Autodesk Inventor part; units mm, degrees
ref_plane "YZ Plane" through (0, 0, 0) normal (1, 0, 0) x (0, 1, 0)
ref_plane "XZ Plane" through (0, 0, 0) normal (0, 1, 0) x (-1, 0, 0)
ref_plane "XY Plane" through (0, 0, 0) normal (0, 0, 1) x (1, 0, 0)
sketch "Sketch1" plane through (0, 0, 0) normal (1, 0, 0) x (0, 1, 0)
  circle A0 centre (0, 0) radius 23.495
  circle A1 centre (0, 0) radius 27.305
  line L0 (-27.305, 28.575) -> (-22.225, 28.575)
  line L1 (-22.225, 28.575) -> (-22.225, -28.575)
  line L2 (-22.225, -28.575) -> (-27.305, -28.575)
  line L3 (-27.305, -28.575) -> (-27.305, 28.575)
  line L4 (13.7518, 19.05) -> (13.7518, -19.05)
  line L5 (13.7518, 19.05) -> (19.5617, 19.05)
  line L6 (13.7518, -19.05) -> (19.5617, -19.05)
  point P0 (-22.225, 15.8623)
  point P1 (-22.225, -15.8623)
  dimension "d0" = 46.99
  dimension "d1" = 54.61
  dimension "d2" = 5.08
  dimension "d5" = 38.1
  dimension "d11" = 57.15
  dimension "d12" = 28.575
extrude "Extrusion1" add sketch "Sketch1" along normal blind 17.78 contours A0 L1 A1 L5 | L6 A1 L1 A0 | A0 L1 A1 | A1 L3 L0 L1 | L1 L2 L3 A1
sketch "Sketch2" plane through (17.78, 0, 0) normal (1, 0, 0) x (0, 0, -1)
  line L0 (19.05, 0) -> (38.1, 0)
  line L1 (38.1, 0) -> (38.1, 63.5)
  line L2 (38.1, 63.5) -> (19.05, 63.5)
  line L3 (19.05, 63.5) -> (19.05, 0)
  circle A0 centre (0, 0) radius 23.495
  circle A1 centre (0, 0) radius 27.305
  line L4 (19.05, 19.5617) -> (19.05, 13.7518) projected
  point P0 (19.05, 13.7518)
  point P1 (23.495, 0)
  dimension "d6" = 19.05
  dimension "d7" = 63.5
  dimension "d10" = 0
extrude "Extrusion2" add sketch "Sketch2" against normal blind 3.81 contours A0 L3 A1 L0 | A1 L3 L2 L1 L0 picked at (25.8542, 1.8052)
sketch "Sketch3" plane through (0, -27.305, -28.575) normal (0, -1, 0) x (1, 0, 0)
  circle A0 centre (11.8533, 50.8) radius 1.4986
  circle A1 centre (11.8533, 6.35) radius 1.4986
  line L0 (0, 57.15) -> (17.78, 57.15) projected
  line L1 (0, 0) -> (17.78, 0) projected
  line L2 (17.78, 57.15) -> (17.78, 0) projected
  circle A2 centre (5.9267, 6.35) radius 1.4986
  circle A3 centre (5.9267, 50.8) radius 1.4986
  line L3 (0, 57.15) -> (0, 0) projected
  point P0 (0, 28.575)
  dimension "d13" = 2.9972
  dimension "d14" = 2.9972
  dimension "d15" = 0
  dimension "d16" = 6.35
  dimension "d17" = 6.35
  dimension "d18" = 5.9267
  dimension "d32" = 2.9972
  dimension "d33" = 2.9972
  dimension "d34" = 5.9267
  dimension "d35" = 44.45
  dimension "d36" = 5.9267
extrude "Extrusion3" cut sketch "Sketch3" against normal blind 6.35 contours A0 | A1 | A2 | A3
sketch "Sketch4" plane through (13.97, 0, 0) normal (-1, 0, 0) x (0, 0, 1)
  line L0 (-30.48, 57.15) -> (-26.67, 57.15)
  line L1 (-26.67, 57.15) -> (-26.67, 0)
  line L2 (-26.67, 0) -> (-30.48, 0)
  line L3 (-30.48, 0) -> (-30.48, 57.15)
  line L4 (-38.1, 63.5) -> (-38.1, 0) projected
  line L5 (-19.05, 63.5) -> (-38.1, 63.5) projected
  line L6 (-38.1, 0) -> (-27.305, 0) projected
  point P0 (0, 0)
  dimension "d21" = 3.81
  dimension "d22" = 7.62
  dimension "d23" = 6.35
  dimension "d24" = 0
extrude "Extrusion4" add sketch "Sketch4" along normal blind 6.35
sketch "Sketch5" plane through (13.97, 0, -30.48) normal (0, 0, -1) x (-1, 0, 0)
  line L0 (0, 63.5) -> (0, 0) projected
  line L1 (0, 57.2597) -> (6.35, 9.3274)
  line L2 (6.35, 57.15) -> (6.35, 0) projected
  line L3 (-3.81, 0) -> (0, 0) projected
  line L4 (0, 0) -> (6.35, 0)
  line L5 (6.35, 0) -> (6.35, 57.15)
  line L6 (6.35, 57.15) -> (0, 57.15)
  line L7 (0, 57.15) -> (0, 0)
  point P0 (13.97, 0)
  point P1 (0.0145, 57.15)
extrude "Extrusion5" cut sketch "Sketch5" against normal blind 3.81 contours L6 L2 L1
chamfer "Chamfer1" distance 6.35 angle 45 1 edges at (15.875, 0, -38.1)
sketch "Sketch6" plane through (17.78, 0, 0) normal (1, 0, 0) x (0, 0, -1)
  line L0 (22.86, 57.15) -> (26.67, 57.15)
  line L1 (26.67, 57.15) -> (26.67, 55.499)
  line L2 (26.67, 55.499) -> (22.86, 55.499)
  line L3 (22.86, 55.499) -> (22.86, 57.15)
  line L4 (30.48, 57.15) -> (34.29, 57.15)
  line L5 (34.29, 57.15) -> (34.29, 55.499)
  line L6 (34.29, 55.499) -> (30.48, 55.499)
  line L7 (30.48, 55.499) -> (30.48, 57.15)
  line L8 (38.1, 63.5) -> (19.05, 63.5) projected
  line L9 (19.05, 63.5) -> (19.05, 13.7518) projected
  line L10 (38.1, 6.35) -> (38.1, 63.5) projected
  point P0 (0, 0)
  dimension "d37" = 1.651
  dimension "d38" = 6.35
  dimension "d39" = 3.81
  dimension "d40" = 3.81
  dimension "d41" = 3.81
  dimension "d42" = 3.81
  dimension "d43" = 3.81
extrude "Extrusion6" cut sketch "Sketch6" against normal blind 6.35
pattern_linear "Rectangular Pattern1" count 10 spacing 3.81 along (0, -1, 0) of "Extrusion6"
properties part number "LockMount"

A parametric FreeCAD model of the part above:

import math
import FreeCAD as App
import Part
import Sketcher

V = App.Vector
Q = App.Units.Quantity


def edges_at(feature, points):
    """Names of the edges that pass closest to the given points."""
    edges = feature.Shape.Edges
    near = lambda p: min(range(len(edges)), key=lambda i: edges[i].distToShape(Part.Vertex(*p))[0])
    return sorted({f"Edge{near(p) + 1}" for p in points})


def add_polygon(sketch, points):
    """Adds a closed chain of lines whose ends are joined by coincident constraints."""
    first, n = sketch.GeometryCount, len(points)
    for a, b in zip(points, points[1:] + points[:1]):
        sketch.addGeometry(Part.LineSegment(App.Vector(*a, 0), App.Vector(*b, 0)), False)
    for i in range(n):
        sketch.addConstraint(Sketcher.Constraint("Coincident", first + i, 2, first + (i + 1) % n, 1))

doc = App.newDocument("Part")
params = doc.addObject("Spreadsheet::Sheet", "Params")
for row, (alias, value) in enumerate([
    ("sketch1_width", "0.2 in"),
    ("sketch1_radius", "1.075 in"),
    ("sketch1_radius2", "0.925 in"),
    ("sketch1_height", "2.25 in"),
    ("pad1_length", "0.7 in"),
    ("sketch2_width", "2.5 in"),
    ("sketch2_height", "0.75 in"),
    ("sketch2_radius", "0.925 in"),
    ("pad2_length", "0.15 in"),
    ("sketch3_diameter", "0.118 in"),
    ("pocket1_length", "0.25 in"),
    ("sketch4_height", "0.15 in"),
    ("sketch4_width", "2.25 in"),
    ("pad3_length", "0.25 in"),
    ("pocket2_length", "0.15 in"),
    ("chamfer_size", "0.25 in"),
    ("sketch6_height", "0.15 in"),
    ("sketch6_width", "0.065 in"),
    ("pocket3_length", "0.25 in"),
    ("linearpattern_pitch", "0.15 in"),
], start=1):
    params.set(f"A{row}", alias)
    params.set(f"B{row}", "=" + value)
    params.setAlias(f"B{row}", alias)

body = doc.addObject("PartDesign::Body", "Body")

sketch1 = body.newObject("Sketcher::SketchObject", "Sketch")
sketch1.AttachmentSupport = (doc.getObject("YZ_Plane"), [""])
sketch1.MapMode = "FlatFace"
sketch1.addGeometry([
    Part.LineSegment(V(14, 19, 0), V(20, 19, 0)),
    Part.ArcOfCircle(Part.Circle(V(0, 0, 0), V(0, 0, 1), 27), math.radians(44), math.radians(144)),
    Part.LineSegment(V(-22, 16, 0), V(-22, 29, 0)),
    Part.LineSegment(V(-22, 29, 0), V(-27, 29, 0)),
    Part.LineSegment(V(-27, 29, 0), V(-27, -29, 0)),
    Part.LineSegment(V(-27, -29, 0), V(-22, -29, 0)),
    Part.LineSegment(V(-22, -29, 0), V(-22, -16, 0)),
    Part.ArcOfCircle(Part.Circle(V(0, 0, 0), V(0, 0, 1), 27), math.radians(-144), math.radians(-44)),
    Part.LineSegment(V(20, -19, 0), V(14, -19, 0)),
    Part.ArcOfCircle(Part.Circle(V(0, 0, 0), V(0, 0, 1), 23), math.radians(54), math.radians(306)),
], False)
sketch1.addConstraint([
    Sketcher.Constraint("Coincident", 0, 2, 1, 1),
    Sketcher.Constraint("Coincident", 1, 2, 2, 1),
    Sketcher.Constraint("Coincident", 2, 2, 3, 1),
    Sketcher.Constraint("Coincident", 3, 2, 4, 1),
    Sketcher.Constraint("Coincident", 4, 2, 5, 1),
    Sketcher.Constraint("Coincident", 5, 2, 6, 1),
    Sketcher.Constraint("Coincident", 6, 2, 7, 1),
    Sketcher.Constraint("Coincident", 7, 2, 8, 1),
    Sketcher.Constraint("Coincident", 8, 2, 9, 2),
    Sketcher.Constraint("Coincident", 9, 1, 0, 1),
    Sketcher.Constraint("Horizontal", 0),
    Sketcher.Constraint("Vertical", 2),
    Sketcher.Constraint("Horizontal", 3),
    Sketcher.Constraint("Vertical", 4),
    Sketcher.Constraint("Horizontal", 5),
    Sketcher.Constraint("Vertical", 6),
    Sketcher.Constraint("Horizontal", 8),
    Sketcher.Constraint("Coincident", 1, 3, -1, 1),
    Sketcher.Constraint("Coincident", 7, 3, -1, 1),
    Sketcher.Constraint("Coincident", 9, 3, -1, 1),
    Sketcher.Constraint("Equal", 1, 7),
    Sketcher.Constraint("Symmetric", 2, 2, 5, 2, -1),
    Sketcher.Constraint("Vertical", 0, 2, 7, 2),
    Sketcher.Constraint("DistanceX", 3, 2, 3, 1, Q("0.2 in")),
    Sketcher.Constraint("Radius", 1, Q("1.075 in")),
    Sketcher.Constraint("Radius", 9, Q("0.925 in")),
    Sketcher.Constraint("DistanceY", 4, 2, 4, 1, Q("2.25 in")),
    Sketcher.Constraint("DistanceY", 7, 2, 0, 2, Q("1.5 in")),
    Sketcher.Constraint("DistanceY", 2, 1, 2, 2, Q("0.5005 in")),
])
sketch1.setExpression("Constraints[23]", "Params.sketch1_width")
sketch1.setExpression("Constraints[24]", "Params.sketch1_radius")
sketch1.setExpression("Constraints[25]", "Params.sketch1_radius2")
sketch1.setExpression("Constraints[26]", "Params.sketch1_height")
pad1 = body.newObject("PartDesign::Pad", "Pad")
pad1.Profile = sketch1
pad1.setExpression("Length", "Params.pad1_length")

sketch2 = body.newObject("Sketcher::SketchObject", "Sketch001")
sketch2.AttachmentSupport = (doc.getObject("YZ_Plane"), [""])
sketch2.MapMode = "FlatFace"
sketch2.AttachmentOffset = App.Placement(V(0, 0, 0.7 * 25.4), App.Rotation())
sketch2.addGeometry([
    Part.ArcOfCircle(Part.Circle(V(0, 0, 0), V(0, 0, 1), 23), math.radians(-90), math.radians(-54)),
    Part.LineSegment(V(0, -23, 0), V(0, -38, 0)),
    Part.LineSegment(V(0, -38, 0), V(64, -38, 0)),
    Part.LineSegment(V(64, -38, 0), V(64, -19, 0)),
    Part.LineSegment(V(64, -19, 0), V(14, -19, 0)),
], False)
sketch2.addConstraint([
    Sketcher.Constraint("Coincident", 0, 1, 1, 1),
    Sketcher.Constraint("Coincident", 1, 2, 2, 1),
    Sketcher.Constraint("Coincident", 2, 2, 3, 1),
    Sketcher.Constraint("Coincident", 3, 2, 4, 1),
    Sketcher.Constraint("Coincident", 4, 2, 0, 2),
    Sketcher.Constraint("Vertical", 1),
    Sketcher.Constraint("Horizontal", 2),
    Sketcher.Constraint("Vertical", 3),
    Sketcher.Constraint("Horizontal", 4),
    Sketcher.Constraint("Coincident", 0, 3, -1, 1),
    Sketcher.Constraint("PointOnObject", 0, 1, -2),
    Sketcher.Constraint("DistanceX", 2, 1, 2, 2, Q("2.5 in")),
    Sketcher.Constraint("DistanceY", 3, 1, 3, 2, Q("0.75 in")),
    Sketcher.Constraint("DistanceY", 3, 2, -1, 1, Q("0.75 in")),
    Sketcher.Constraint("Radius", 0, Q("0.925 in")),
])
sketch2.setExpression("Constraints[11]", "Params.sketch2_width")
sketch2.setExpression("Constraints[12]", "Params.sketch2_height")
sketch2.setExpression("Constraints[14]", "Params.sketch2_radius")
pad2 = body.newObject("PartDesign::Pad", "Pad001")
pad2.Profile = sketch2
pad2.setExpression("Length", "Params.pad2_length")
pad2.Reversed = True

sketch3 = body.newObject("Sketcher::SketchObject", "Sketch002")
sketch3.AttachmentSupport = (doc.getObject("XZ_Plane"), [""])
sketch3.MapMode = "FlatFace"
sketch3.AttachmentOffset = App.Placement(V(0, 0, 1.075 * 25.4), App.Rotation())
sketch3.addGeometry([
    Part.Circle(V(11.9, 22.2, 0), V(0, 0, 1), 1.5),
    Part.Circle(V(11.9, -22.2, 0), V(0, 0, 1), 1.5),
    Part.Circle(V(5.9, -22.2, 0), V(0, 0, 1), 1.5),
    Part.Circle(V(5.9, 22.2, 0), V(0, 0, 1), 1.5),
], False)
sketch3.addConstraint([
    Sketcher.Constraint("Equal", 0, 1),
    Sketcher.Constraint("Equal", 1, 2),
    Sketcher.Constraint("Equal", 2, 3),
    Sketcher.Constraint("Symmetric", 0, 3, 1, 3, -1),
    Sketcher.Constraint("Symmetric", 2, 3, 3, 3, -1),
    Sketcher.Constraint("Horizontal", 1, 3, 2, 3),
    Sketcher.Constraint("Diameter", 0, Q("0.118 in")),
    Sketcher.Constraint("DistanceY", 1, 3, 0, 3, Q("1.75 in")),
    Sketcher.Constraint("DistanceX", -1, 1, 2, 3, Q("5.9267 mm")),
    Sketcher.Constraint("DistanceX", 2, 3, 1, 3, Q("5.9266 mm")),
])
sketch3.setExpression("Constraints[6]", "Params.sketch3_diameter")
pocket1 = body.newObject("PartDesign::Pocket", "Pocket")
pocket1.Profile = sketch3
pocket1.setExpression("Length", "Params.pocket1_length")

sketch4 = body.newObject("Sketcher::SketchObject", "Sketch003")
sketch4.AttachmentSupport = (doc.getObject("YZ_Plane"), [""])
sketch4.MapMode = "FlatFace"
sketch4.AttachmentOffset = App.Placement(V(0, 0, 0.55 * 25.4), App.Rotation())
add_polygon(sketch4, [(57.1, -26.7), (57.1, -30.5), (0, -30.5), (0, -26.7)])
sketch4.addConstraint([
    Sketcher.Constraint("Vertical", 0),
    Sketcher.Constraint("Horizontal", 1),
    Sketcher.Constraint("Vertical", 2),
    Sketcher.Constraint("Horizontal", 3),
    Sketcher.Constraint("PointOnObject", 1, 2, -2),
    Sketcher.Constraint("DistanceY", 0, 2, 0, 1, Q("0.15 in")),
    Sketcher.Constraint("DistanceX", 1, 2, 1, 1, Q("2.25 in")),
    Sketcher.Constraint("DistanceY", 0, 2, -1, 1, Q("1.2 in")),
])
sketch4.setExpression("Constraints[9]", "Params.sketch4_height")
sketch4.setExpression("Constraints[10]", "Params.sketch4_width")
pad3 = body.newObject("PartDesign::Pad", "Pad002")
pad3.Profile = sketch4
pad3.setExpression("Length", "Params.pad3_length")
pad3.Reversed = True

sketch5 = body.newObject("Sketcher::SketchObject", "Sketch004")
sketch5.AttachmentSupport = (doc.getObject("XY_Plane"), [""])
sketch5.MapMode = "FlatFace"
sketch5.AttachmentOffset = App.Placement(V(0, 0, -1.2 * 25.4), App.Rotation())
add_polygon(sketch5, [(8, 57), (14, 57), (8, 9)])
sketch5.addConstraint([
    Sketcher.Constraint("Horizontal", 0),
    Sketcher.Constraint("Vertical", 2),
    Sketcher.Constraint("DistanceX", -1, 1, 1, 2, Q("0.3 in")),
    Sketcher.Constraint("DistanceY", -1, 1, 0, 2, Q("2.25 in")),
    Sketcher.Constraint("DistanceX", 0, 1, 0, 2, Q("6.3355 mm")),
    Sketcher.Constraint("DistanceY", 2, 1, 2, 2, Q("47.8226 mm")),
])
pocket2 = body.newObject("PartDesign::Pocket", "Pocket001")
pocket2.Profile = sketch5
pocket2.setExpression("Length", "Params.pocket2_length")
pocket2.Reversed = True
doc.recompute()

chamfer = body.newObject("PartDesign::Chamfer", "Chamfer")
chamfer.Base = (pocket2, edges_at(pocket2, [(15.875, 0, -38.1)]))
chamfer.setExpression("Size", "Params.chamfer_size")

sketch6 = body.newObject("Sketcher::SketchObject", "Sketch005")
sketch6.AttachmentSupport = (doc.getObject("YZ_Plane"), [""])
sketch6.MapMode = "FlatFace"
sketch6.AttachmentOffset = App.Placement(V(0, 0, 0.7 * 25.4), App.Rotation())
add_polygon(sketch6, [(57.1, -26.7), (57.1, -22.9), (55.5, -22.9), (55.5, -26.7)])
add_polygon(sketch6, [(57.1, -34.3), (57.1, -30.5), (55.5, -30.5), (55.5, -34.3)])
sketch6.addConstraint([
    Sketcher.Constraint("Vertical", 0),
    Sketcher.Constraint("Horizontal", 1),
    Sketcher.Constraint("Vertical", 2),
    Sketcher.Constraint("Horizontal", 3),
    Sketcher.Constraint("Vertical", 4),
    Sketcher.Constraint("Horizontal", 5),
    Sketcher.Constraint("Vertical", 6),
    Sketcher.Constraint("Horizontal", 7),
    Sketcher.Constraint("Vertical", 3, 2, 4, 2),
    Sketcher.Constraint("Vertical", 2, 2, 5, 2),
    Sketcher.Constraint("Equal", 2, 4),
    Sketcher.Constraint("DistanceY", 0, 1, 0, 2, Q("0.15 in")),
    Sketcher.Constraint("DistanceX", 1, 2, 1, 1, Q("0.065 in")),
    Sketcher.Constraint("DistanceY", 4, 2, 3, 2, Q("0.15 in")),
    Sketcher.Constraint("DistanceY", 0, 2, -1, 1, Q("0.9 in")),
    Sketcher.Constraint("DistanceX", -1, 1, 0, 2, Q("2.25 in")),
])
sketch6.setExpression("Constraints[19]", "Params.sketch6_height")
sketch6.setExpression("Constraints[20]", "Params.sketch6_width")
pocket3 = body.newObject("PartDesign::Pocket", "Pocket002")
pocket3.Profile = sketch6
pocket3.setExpression("Length", "Params.pocket3_length")
doc.recompute()

linearpattern = body.newObject("PartDesign::LinearPattern", "LinearPattern")
linearpattern.Originals = [pocket3]
linearpattern.Direction = (doc.getObject("Y_Axis"), [""])
linearpattern.Mode = "offset"
linearpattern.setExpression("Offset", "Params.linearpattern_pitch")
linearpattern.Occurrences = 10
linearpattern.Reversed = True
body.Tip = linearpattern

doc.recompute()
